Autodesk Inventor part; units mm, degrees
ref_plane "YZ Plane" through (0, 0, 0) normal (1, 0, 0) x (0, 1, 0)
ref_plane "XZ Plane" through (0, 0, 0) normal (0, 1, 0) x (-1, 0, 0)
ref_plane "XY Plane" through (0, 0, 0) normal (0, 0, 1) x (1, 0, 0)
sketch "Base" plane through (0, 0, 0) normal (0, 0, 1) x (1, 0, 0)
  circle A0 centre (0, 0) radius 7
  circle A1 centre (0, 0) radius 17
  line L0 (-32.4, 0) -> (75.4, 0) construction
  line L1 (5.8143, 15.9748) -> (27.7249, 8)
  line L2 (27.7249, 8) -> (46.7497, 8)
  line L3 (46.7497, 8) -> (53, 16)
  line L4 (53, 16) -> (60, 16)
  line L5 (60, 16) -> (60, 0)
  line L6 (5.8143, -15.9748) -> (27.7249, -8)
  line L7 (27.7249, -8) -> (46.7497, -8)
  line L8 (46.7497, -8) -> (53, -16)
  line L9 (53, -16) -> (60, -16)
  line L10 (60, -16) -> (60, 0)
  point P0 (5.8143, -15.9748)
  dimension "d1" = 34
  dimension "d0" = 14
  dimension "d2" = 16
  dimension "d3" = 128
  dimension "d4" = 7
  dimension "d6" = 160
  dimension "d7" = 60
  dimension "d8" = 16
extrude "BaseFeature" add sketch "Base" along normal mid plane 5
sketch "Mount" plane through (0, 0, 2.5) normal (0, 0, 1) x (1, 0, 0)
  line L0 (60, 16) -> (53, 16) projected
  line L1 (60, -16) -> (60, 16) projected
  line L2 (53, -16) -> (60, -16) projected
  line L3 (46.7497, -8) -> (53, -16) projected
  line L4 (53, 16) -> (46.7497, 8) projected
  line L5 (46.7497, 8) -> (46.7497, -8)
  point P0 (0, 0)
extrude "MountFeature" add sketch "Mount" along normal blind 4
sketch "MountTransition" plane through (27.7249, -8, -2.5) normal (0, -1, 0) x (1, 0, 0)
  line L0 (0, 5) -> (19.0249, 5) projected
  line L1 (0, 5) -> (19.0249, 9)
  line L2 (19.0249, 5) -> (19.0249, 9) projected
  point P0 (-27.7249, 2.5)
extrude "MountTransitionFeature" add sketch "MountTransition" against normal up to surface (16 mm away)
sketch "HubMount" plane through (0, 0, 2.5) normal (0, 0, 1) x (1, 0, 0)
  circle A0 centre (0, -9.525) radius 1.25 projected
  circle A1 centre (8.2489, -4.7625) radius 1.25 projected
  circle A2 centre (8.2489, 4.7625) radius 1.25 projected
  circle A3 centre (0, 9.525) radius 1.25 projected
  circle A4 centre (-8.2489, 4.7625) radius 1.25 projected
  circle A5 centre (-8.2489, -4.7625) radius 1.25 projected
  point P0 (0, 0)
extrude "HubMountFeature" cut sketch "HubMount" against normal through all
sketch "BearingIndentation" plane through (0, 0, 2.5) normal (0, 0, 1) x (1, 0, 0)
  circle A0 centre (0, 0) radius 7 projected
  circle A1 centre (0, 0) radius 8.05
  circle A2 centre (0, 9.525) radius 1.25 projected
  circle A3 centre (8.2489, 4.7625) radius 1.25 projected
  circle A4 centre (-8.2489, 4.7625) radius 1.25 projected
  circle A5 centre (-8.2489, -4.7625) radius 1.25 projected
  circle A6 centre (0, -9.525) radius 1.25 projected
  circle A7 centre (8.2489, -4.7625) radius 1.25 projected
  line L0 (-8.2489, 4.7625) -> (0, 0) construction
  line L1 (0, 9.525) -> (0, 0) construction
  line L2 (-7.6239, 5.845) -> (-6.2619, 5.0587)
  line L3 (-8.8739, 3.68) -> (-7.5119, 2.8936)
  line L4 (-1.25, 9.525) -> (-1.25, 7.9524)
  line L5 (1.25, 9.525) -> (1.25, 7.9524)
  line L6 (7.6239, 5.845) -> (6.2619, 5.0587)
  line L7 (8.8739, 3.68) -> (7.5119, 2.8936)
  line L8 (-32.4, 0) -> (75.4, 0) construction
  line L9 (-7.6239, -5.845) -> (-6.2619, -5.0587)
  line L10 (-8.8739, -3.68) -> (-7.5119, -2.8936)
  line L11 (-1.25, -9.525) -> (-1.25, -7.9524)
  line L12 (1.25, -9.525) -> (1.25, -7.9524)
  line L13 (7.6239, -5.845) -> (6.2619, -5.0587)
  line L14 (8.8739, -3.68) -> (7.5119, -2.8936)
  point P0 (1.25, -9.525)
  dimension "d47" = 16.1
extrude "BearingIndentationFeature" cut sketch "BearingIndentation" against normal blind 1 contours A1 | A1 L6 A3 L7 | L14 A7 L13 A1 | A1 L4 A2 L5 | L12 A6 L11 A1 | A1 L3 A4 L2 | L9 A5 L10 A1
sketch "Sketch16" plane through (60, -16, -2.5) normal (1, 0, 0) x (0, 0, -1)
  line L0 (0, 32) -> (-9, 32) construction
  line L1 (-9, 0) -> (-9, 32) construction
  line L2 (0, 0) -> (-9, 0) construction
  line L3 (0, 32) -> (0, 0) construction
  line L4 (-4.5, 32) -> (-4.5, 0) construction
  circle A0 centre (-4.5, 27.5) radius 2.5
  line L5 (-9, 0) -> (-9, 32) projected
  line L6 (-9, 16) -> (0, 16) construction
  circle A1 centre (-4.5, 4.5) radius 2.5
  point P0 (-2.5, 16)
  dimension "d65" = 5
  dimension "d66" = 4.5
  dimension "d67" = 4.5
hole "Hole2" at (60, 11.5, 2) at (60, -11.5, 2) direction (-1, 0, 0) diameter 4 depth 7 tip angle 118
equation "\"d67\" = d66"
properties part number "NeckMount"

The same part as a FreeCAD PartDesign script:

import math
import FreeCAD as App
import Part
import Sketcher
Q = App.Units.Quantity


def add_polygon(sketch, points):
    """Adds a closed chain of lines whose ends are joined by coincident constraints."""
    first, n = sketch.GeometryCount, len(points)
    for a, b in zip(points, points[1:] + points[:1]):
        sketch.addGeometry(Part.LineSegment(App.Vector(*a, 0), App.Vector(*b, 0)), False)
    for i in range(n):
        sketch.addConstraint(Sketcher.Constraint("Coincident", first + i, 2, first + (i + 1) % n, 1))

doc = App.newDocument("Part")
body = doc.addObject("PartDesign::Body", "Body")

# Sketch on XY plane
sketch1 = doc.addObject("Sketcher::SketchObject", "Sketch")
body.addObject(sketch1)
sketch1.AttachmentSupport = (doc.XY_Plane, [""])
sketch1.MapMode = "FlatFace"
sketch1.addGeometry(Part.ArcOfCircle(Part.Circle(App.Vector(0, 0, 0), App.Vector(0, 0, 1), 17), math.radians(70.000164), math.radians(289.999836)), False)
sketch1.addGeometry(Part.LineSegment(App.Vector(5.8143, -15.9748, 0), App.Vector(27.7249, -8, 0)), False)
sketch1.addGeometry(Part.LineSegment(App.Vector(27.7249, -8, 0), App.Vector(46.7497, -8, 0)), False)
sketch1.addGeometry(Part.LineSegment(App.Vector(46.7497, -8, 0), App.Vector(53, -16, 0)), False)
sketch1.addGeometry(Part.LineSegment(App.Vector(53, -16, 0), App.Vector(60, -16, 0)), False)
sketch1.addGeometry(Part.LineSegment(App.Vector(60, -16, 0), App.Vector(60, 16, 0)), False)
sketch1.addGeometry(Part.LineSegment(App.Vector(60, 16, 0), App.Vector(53, 16, 0)), False)
sketch1.addGeometry(Part.LineSegment(App.Vector(53, 16, 0), App.Vector(46.7497, 8, 0)), False)
sketch1.addGeometry(Part.LineSegment(App.Vector(46.7497, 8, 0), App.Vector(27.7249, 8, 0)), False)
sketch1.addGeometry(Part.LineSegment(App.Vector(27.7249, 8, 0), App.Vector(5.8143, 15.9748, 0)), False)
sketch1.addGeometry(Part.Circle(App.Vector(0, 0, 0), App.Vector(0, 0, 1), 7), False)
sketch1.addConstraint(Sketcher.Constraint("Tangent", 0, 2, 1, 1))
sketch1.addConstraint(Sketcher.Constraint("Coincident", 1, 2, 2, 1))
sketch1.addConstraint(Sketcher.Constraint("Coincident", 2, 2, 3, 1))
sketch1.addConstraint(Sketcher.Constraint("Coincident", 3, 2, 4, 1))
sketch1.addConstraint(Sketcher.Constraint("Coincident", 4, 2, 5, 1))
sketch1.addConstraint(Sketcher.Constraint("Coincident", 5, 2, 6, 1))
sketch1.addConstraint(Sketcher.Constraint("Coincident", 6, 2, 7, 1))
sketch1.addConstraint(Sketcher.Constraint("Coincident", 7, 2, 8, 1))
sketch1.addConstraint(Sketcher.Constraint("Coincident", 8, 2, 9, 1))
sketch1.addConstraint(Sketcher.Constraint("Tangent", 9, 2, 0, 1))
sketch1.addConstraint(Sketcher.Constraint("Horizontal", 2))
sketch1.addConstraint(Sketcher.Constraint("Horizontal", 4))
sketch1.addConstraint(Sketcher.Constraint("Vertical", 5))
sketch1.addConstraint(Sketcher.Constraint("Horizontal", 6))
sketch1.addConstraint(Sketcher.Constraint("Horizontal", 8))
sketch1.addConstraint(Sketcher.Constraint("Coincident", 0, 3, -1, 1))
sketch1.addConstraint(Sketcher.Constraint("Coincident", 10, 3, -1, 1))
sketch1.addConstraint(Sketcher.Constraint("Symmetric", 3, 2, 6, 2, -1))
sketch1.addConstraint(Sketcher.Constraint("Symmetric", 2, 2, 7, 2, -1))
sketch1.addConstraint(Sketcher.Constraint("Vertical", 1, 2, 8, 2))
sketch1.addConstraint(Sketcher.Constraint("Diameter", 10, Q("14 mm")))
sketch1.addConstraint(Sketcher.Constraint("Radius", 0, Q("17 mm")))
sketch1.addConstraint(Sketcher.Constraint("DistanceX", 4, 1, 4, 2, Q("7 mm")))
sketch1.addConstraint(Sketcher.Constraint("Angle", 7, Q("-128 deg")))
sketch1.addConstraint(Sketcher.Constraint("Angle", 9, Q("160 deg")))
sketch1.addConstraint(Sketcher.Constraint("DistanceY", 3, 2, -1, 1, Q("16 mm")))
sketch1.addConstraint(Sketcher.Constraint("DistanceX", -1, 1, 4, 2, Q("60 mm")))
sketch1.addConstraint(Sketcher.Constraint("DistanceY", 2, 2, 7, 2, Q("16 mm")))
pad1 = doc.addObject("PartDesign::Pad", "Pad")
body.addObject(pad1)
pad1.Profile = sketch1
pad1.Length = 5
pad1.Midplane = True

# Sketch on XY plane
sketch2 = doc.addObject("Sketcher::SketchObject", "Sketch001")
body.addObject(sketch2)
sketch2.AttachmentSupport = (doc.XY_Plane, [""])
sketch2.MapMode = "FlatFace"
sketch2.AttachmentOffset = App.Placement(App.Vector(0, 0, 2.5), App.Rotation())
add_polygon(sketch2, [(60, -16), (60, 16), (53, 16), (46.7497, 8), (46.7497, -8), (53, -16)])  # lines 0-5
sketch2.addConstraint(Sketcher.Constraint("Vertical", 0))
sketch2.addConstraint(Sketcher.Constraint("Horizontal", 1))
sketch2.addConstraint(Sketcher.Constraint("Vertical", 3))
sketch2.addConstraint(Sketcher.Constraint("Horizontal", 5))
sketch2.addConstraint(Sketcher.Constraint("Symmetric", 1, 2, 4, 2, -1))
sketch2.addConstraint(Sketcher.Constraint("Equal", 2, 4))
sketch2.addConstraint(Sketcher.Constraint("DistanceX", 1, 2, 1, 1, Q("7 mm")))
sketch2.addConstraint(Sketcher.Constraint("DistanceY", 0, 1, 0, 2, Q("32 mm")))
sketch2.addConstraint(Sketcher.Constraint("DistanceY", 3, 2, 3, 1, Q("16 mm")))
sketch2.addConstraint(Sketcher.Constraint("Angle", 2, Q("-128 deg")))
sketch2.addConstraint(Sketcher.Constraint("DistanceX", -1, 1, 0, 2, Q("60 mm")))
pad2 = doc.addObject("PartDesign::Pad", "Pad001")
body.addObject(pad2)
pad2.Profile = sketch2
pad2.Length = 4

# Sketch on XZ plane
sketch3 = doc.addObject("Sketcher::SketchObject", "Sketch002")
body.addObject(sketch3)
sketch3.AttachmentSupport = (doc.XZ_Plane, [""])
sketch3.MapMode = "FlatFace"
sketch3.AttachmentOffset = App.Placement(App.Vector(0, 0, 8), App.Rotation())
add_polygon(sketch3, [(46.7498, 6.5), (27.7249, 2.5), (46.7498, 2.5)])  # lines 0-2
sketch3.addConstraint(Sketcher.Constraint("Horizontal", 1))
sketch3.addConstraint(Sketcher.Constraint("Vertical", 2))
sketch3.addConstraint(Sketcher.Constraint("DistanceY", 2, 1, 2, 2, Q("4 mm")))
sketch3.addConstraint(Sketcher.Constraint("DistanceY", -1, 1, 0, 2, Q("2.5 mm")))
sketch3.addConstraint(Sketcher.Constraint("DistanceX", 1, 1, 1, 2, Q("19.025 mm")))
sketch3.addConstraint(Sketcher.Constraint("DistanceX", -1, 1, 0, 2, Q("27.725 mm")))
pad3 = doc.addObject("PartDesign::Pad", "Pad002")
body.addObject(pad3)
pad3.Profile = sketch3
pad3.Length = 16
pad3.Reversed = True

# Sketch on XY plane
sketch4 = doc.addObject("Sketcher::SketchObject", "Sketch003")
body.addObject(sketch4)
sketch4.AttachmentSupport = (doc.XY_Plane, [""])
sketch4.MapMode = "FlatFace"
sketch4.AttachmentOffset = App.Placement(App.Vector(0, 0, 2.5), App.Rotation())
sketch4.addGeometry(Part.Circle(App.Vector(0, -9.525, 0), App.Vector(0, 0, 1), 1.25), False)
sketch4.addGeometry(Part.Circle(App.Vector(8.2489, -4.7625, 0), App.Vector(0, 0, 1), 1.25), False)
sketch4.addGeometry(Part.Circle(App.Vector(8.2489, 4.7625, 0), App.Vector(0, 0, 1), 1.25), False)
sketch4.addGeometry(Part.Circle(App.Vector(0, 9.525, 0), App.Vector(0, 0, 1), 1.25), False)
sketch4.addGeometry(Part.Circle(App.Vector(-8.2489, 4.7625, 0), App.Vector(0, 0, 1), 1.25), False)
sketch4.addGeometry(Part.Circle(App.Vector(-8.2489, -4.7625, 0), App.Vector(0, 0, 1), 1.25), False)
sketch4.addConstraint(Sketcher.Constraint("Equal", 0, 1))
sketch4.addConstraint(Sketcher.Constraint("Equal", 1, 2))
sketch4.addConstraint(Sketcher.Constraint("Equal", 2, 3))
sketch4.addConstraint(Sketcher.Constraint("Equal", 3, 4))
sketch4.addConstraint(Sketcher.Constraint("Equal", 4, 5))
sketch4.addConstraint(Sketcher.Constraint("Symmetric", 0, 3, 3, 3, -1, 1))
sketch4.addConstraint(Sketcher.Constraint("Symmetric", 1, 3, 4, 3, -1, 1))
sketch4.addConstraint(Sketcher.Constraint("Symmetric", 2, 3, 5, 3, -1, 1))
sketch4.addConstraint(Sketcher.Constraint("Symmetric", 2, 3, 4, 3, -2))
sketch4.addConstraint(Sketcher.Constraint("PointOnObject", 0, 3, -2))
sketch4.addConstraint(Sketcher.Constraint("Diameter", 0, Q("2.5 mm")))
sketch4.addConstraint(Sketcher.Constraint("DistanceY", 0, 3, 3, 3, Q("19.05 mm")))
sketch4.addConstraint(Sketcher.Constraint("DistanceX", -1, 1, 1, 3, Q("8.249 mm")))
sketch4.addConstraint(Sketcher.Constraint("DistanceY", 1, 3, 2, 3, Q("9.525 mm")))
pocket1 = doc.addObject("PartDesign::Pocket", "Pocket")
body.addObject(pocket1)
pocket1.Profile = sketch4
pocket1.Type = "ThroughAll"

# Sketch on XY plane
sketch5 = doc.addObject("Sketcher::SketchObject", "Sketch004")
body.addObject(sketch5)
sketch5.AttachmentSupport = (doc.XY_Plane, [""])
sketch5.MapMode = "FlatFace"
sketch5.AttachmentOffset = App.Placement(App.Vector(0, 0, 2.5), App.Rotation())
sketch5.addGeometry(Part.ArcOfCircle(Part.Circle(App.Vector(0, 0, 0), App.Vector(0, 0, 1), 8.05), math.radians(-21.066792), math.radians(21.066792)), False)
sketch5.addGeometry(Part.LineSegment(App.Vector(7.5119, 2.8936, 0), App.Vector(8.8739, 3.68, 0)), False)
sketch5.addGeometry(Part.ArcOfCircle(Part.Circle(App.Vector(8.2489, 4.7625, 0), App.Vector(0, 0, 1), 1.25), math.radians(120.000728), math.radians(300.000728)), False)
sketch5.addGeometry(Part.LineSegment(App.Vector(7.6239, 5.845, 0), App.Vector(6.2619, 5.0587, 0)), False)
sketch5.addGeometry(Part.ArcOfCircle(Part.Circle(App.Vector(0, 0, 0), App.Vector(0, 0, 1), 8.05), math.radians(38.933144), math.radians(81.067039)), False)
sketch5.addGeometry(Part.LineSegment(App.Vector(1.25, 7.9524, 0), App.Vector(1.25, 9.525, 0)), False)
sketch5.addGeometry(Part.ArcOfCircle(Part.Circle(App.Vector(0, 9.525, 0), App.Vector(0, 0, 1), 1.25), math.radians(180), math.radians(360)), False)
sketch5.addGeometry(Part.LineSegment(App.Vector(-1.25, 9.525, 0), App.Vector(-1.25, 7.9524, 0)), False)
sketch5.addGeometry(Part.ArcOfCircle(Part.Circle(App.Vector(0, 0, 0), App.Vector(0, 0, 1), 8.05), math.radians(98.932961), math.radians(141.066856)), False)
sketch5.addGeometry(Part.LineSegment(App.Vector(-6.2619, 5.0587, 0), App.Vector(-7.6239, 5.845, 0)), False)
sketch5.addGeometry(Part.ArcOfCircle(Part.Circle(App.Vector(-8.2489, 4.7625, 0), App.Vector(0, 0, 1), 1.25), math.radians(-120.000728), math.radians(59.999272)), False)
sketch5.addGeometry(Part.LineSegment(App.Vector(-8.8739, 3.68, 0), App.Vector(-7.5119, 2.8936, 0)), False)
sketch5.addGeometry(Part.ArcOfCircle(Part.Circle(App.Vector(0, 0, 0), App.Vector(0, 0, 1), 8.05), math.radians(158.933208), math.radians(201.066792)), False)
sketch5.addGeometry(Part.LineSegment(App.Vector(-7.5119, -2.8936, 0), App.Vector(-8.8739, -3.68, 0)), False)
sketch5.addGeometry(Part.ArcOfCircle(Part.Circle(App.Vector(-8.2489, -4.7625, 0), App.Vector(0, 0, 1), 1.25), math.radians(-59.999272), math.radians(120.000728)), False)
sketch5.addGeometry(Part.LineSegment(App.Vector(-7.6239, -5.845, 0), App.Vector(-6.2619, -5.0587, 0)), False)
sketch5.addGeometry(Part.ArcOfCircle(Part.Circle(App.Vector(0, 0, 0), App.Vector(0, 0, 1), 8.05), math.radians(-141.066856), math.radians(-98.932961)), False)
sketch5.addGeometry(Part.LineSegment(App.Vector(-1.25, -7.9524, 0), App.Vector(-1.25, -9.525, 0)), False)
sketch5.addGeometry(Part.ArcOfCircle(Part.Circle(App.Vector(0, -9.525, 0), App.Vector(0, 0, 1), 1.25), math.radians(0), math.radians(180)), False)
sketch5.addGeometry(Part.LineSegment(App.Vector(1.25, -9.525, 0), App.Vector(1.25, -7.9524, 0)), False)
sketch5.addGeometry(Part.ArcOfCircle(Part.Circle(App.Vector(0, 0, 0), App.Vector(0, 0, 1), 8.05), math.radians(-81.067039), math.radians(-38.933144)), False)
sketch5.addGeometry(Part.LineSegment(App.Vector(6.2619, -5.0587, 0), App.Vector(7.6239, -5.845, 0)), False)
sketch5.addGeometry(Part.ArcOfCircle(Part.Circle(App.Vector(8.2489, -4.7625, 0), App.Vector(0, 0, 1), 1.25), math.radians(59.999272), math.radians(239.999272)), False)
sketch5.addGeometry(Part.LineSegment(App.Vector(8.8739, -3.68, 0), App.Vector(7.5119, -2.8936, 0)), False)
sketch5.addGeometry(Part.Circle(App.Vector(0, 0, 0), App.Vector(0, 0, 1), 7), False)
sketch5.addConstraint(Sketcher.Constraint("Coincident", 0, 2, 1, 1))
sketch5.addConstraint(Sketcher.Constraint("Tangent", 1, 2, 2, 2))
sketch5.addConstraint(Sketcher.Constraint("Tangent", 2, 1, 3, 1))
sketch5.addConstraint(Sketcher.Constraint("Coincident", 3, 2, 4, 1))
sketch5.addConstraint(Sketcher.Constraint("Coincident", 4, 2, 5, 1))
sketch5.addConstraint(Sketcher.Constraint("Tangent", 5, 2, 6, 2))
sketch5.addConstraint(Sketcher.Constraint("Tangent", 6, 1, 7, 1))
sketch5.addConstraint(Sketcher.Constraint("Coincident", 7, 2, 8, 1))
sketch5.addConstraint(Sketcher.Constraint("Coincident", 8, 2, 9, 1))
sketch5.addConstraint(Sketcher.Constraint("Tangent", 9, 2, 10, 2))
sketch5.addConstraint(Sketcher.Constraint("Tangent", 10, 1, 11, 1))
sketch5.addConstraint(Sketcher.Constraint("Coincident", 11, 2, 12, 1))
sketch5.addConstraint(Sketcher.Constraint("Coincident", 12, 2, 13, 1))
sketch5.addConstraint(Sketcher.Constraint("Tangent", 13, 2, 14, 2))
sketch5.addConstraint(Sketcher.Constraint("Tangent", 14, 1, 15, 1))
sketch5.addConstraint(Sketcher.Constraint("Coincident", 15, 2, 16, 1))
sketch5.addConstraint(Sketcher.Constraint("Coincident", 16, 2, 17, 1))
sketch5.addConstraint(Sketcher.Constraint("Tangent", 17, 2, 18, 2))
sketch5.addConstraint(Sketcher.Constraint("Tangent", 18, 1, 19, 1))
sketch5.addConstraint(Sketcher.Constraint("Coincident", 19, 2, 20, 1))
sketch5.addConstraint(Sketcher.Constraint("Coincident", 20, 2, 21, 1))
sketch5.addConstraint(Sketcher.Constraint("Tangent", 21, 2, 22, 2))
sketch5.addConstraint(Sketcher.Constraint("Tangent", 22, 1, 23, 1))
sketch5.addConstraint(Sketcher.Constraint("Coincident", 23, 2, 0, 1))
sketch5.addConstraint(Sketcher.Constraint("Vertical", 5))
sketch5.addConstraint(Sketcher.Constraint("Vertical", 7))
sketch5.addConstraint(Sketcher.Constraint("Vertical", 17))
sketch5.addConstraint(Sketcher.Constraint("Vertical", 19))
sketch5.addConstraint(Sketcher.Constraint("Coincident", 0, 3, -1, 1))
sketch5.addConstraint(Sketcher.Constraint("Coincident", 4, 3, -1, 1))
sketch5.addConstraint(Sketcher.Constraint("Coincident", 8, 3, -1, 1))
sketch5.addConstraint(Sketcher.Constraint("Coincident", 12, 3, -1, 1))
sketch5.addConstraint(Sketcher.Constraint("Coincident", 16, 3, -1, 1))
sketch5.addConstraint(Sketcher.Constraint("Coincident", 20, 3, -1, 1))
sketch5.addConstraint(Sketcher.Constraint("Coincident", 24, 3, -1, 1))
sketch5.addConstraint(Sketcher.Constraint("Equal", 0, 4))
sketch5.addConstraint(Sketcher.Constraint("Equal", 2, 6))
sketch5.addConstraint(Sketcher.Constraint("Equal", 4, 8))
sketch5.addConstraint(Sketcher.Constraint("Equal", 6, 10))
sketch5.addConstraint(Sketcher.Constraint("Equal", 8, 12))
sketch5.addConstraint(Sketcher.Constraint("Equal", 10, 14))
sketch5.addConstraint(Sketcher.Constraint("Equal", 12, 16))
sketch5.addConstraint(Sketcher.Constraint("Equal", 14, 18))
sketch5.addConstraint(Sketcher.Constraint("Equal", 16, 20))
sketch5.addConstraint(Sketcher.Constraint("Equal", 18, 22))
sketch5.addConstraint(Sketcher.Constraint("Symmetric", 2, 3, 14, 3, -1, 1))
sketch5.addConstraint(Sketcher.Constraint("Symmetric", 6, 3, 18, 3, -1, 1))
sketch5.addConstraint(Sketcher.Constraint("Symmetric", 10, 3, 22, 3, -1, 1))
sketch5.addConstraint(Sketcher.Constraint("Symmetric", 2, 3, 10, 3, -2))
sketch5.addConstraint(Sketcher.Constraint("PointOnObject", 6, 3, -2))
sketch5.addConstraint(Sketcher.Constraint("Parallel", 1, 3))
sketch5.addConstraint(Sketcher.Constraint("Parallel", 9, 11))
sketch5.addConstraint(Sketcher.Constraint("Parallel", 3, 13))
sketch5.addConstraint(Sketcher.Constraint("Parallel", 13, 15))
sketch5.addConstraint(Sketcher.Constraint("Parallel", 11, 21))
sketch5.addConstraint(Sketcher.Constraint("Parallel", 21, 23))
sketch5.addConstraint(Sketcher.Constraint("Horizontal", 3, 2, 8, 2))
sketch5.addConstraint(Sketcher.Constraint("Equal", 1, 3))
sketch5.addConstraint(Sketcher.Constraint("Radius", 0, Q("8.05 mm")))
sketch5.addConstraint(Sketcher.Constraint("Diameter", 24, Q("14 mm")))
sketch5.addConstraint(Sketcher.Constraint("Radius", 2, Q("1.25 mm")))
sketch5.addConstraint(Sketcher.Constraint("DistanceY", -1, 1, 1, 2, Q("3.68 mm")))
sketch5.addConstraint(Sketcher.Constraint("DistanceX", 2, 1, 1, 2, Q("1.25 mm")))
sketch5.addConstraint(Sketcher.Constraint("DistanceY", 2, 1, 6, 3, Q("3.68 mm")))
pocket2 = doc.addObject("PartDesign::Pocket", "Pocket001")
body.addObject(pocket2)
pocket2.Profile = sketch5
pocket2.Length = 1

# Sketch on YZ plane
sketch6 = doc.addObject("Sketcher::SketchObject", "Sketch005")
body.addObject(sketch6)
sketch6.AttachmentSupport = (doc.YZ_Plane, [""])
sketch6.MapMode = "FlatFace"
sketch6.AttachmentOffset = App.Placement(App.Vector(0, 0, 60), App.Rotation())
sketch6.addGeometry(Part.Circle(App.Vector(11.5, 2, 0), App.Vector(0, 0, 1), 2), False)
sketch6.addGeometry(Part.Circle(App.Vector(-11.5, 2, 0), App.Vector(0, 0, 1), 2), False)
sketch6.addConstraint(Sketcher.Constraint("Equal", 0, 1))
sketch6.addConstraint(Sketcher.Constraint("Symmetric", 0, 3, 1, 3, -2))
sketch6.addConstraint(Sketcher.Constraint("Diameter", 0, Q("4 mm")))
sketch6.addConstraint(Sketcher.Constraint("DistanceY", -1, 1, 0, 3, Q("2 mm")))
sketch6.addConstraint(Sketcher.Constraint("DistanceX", 1, 3, 0, 3, Q("23 mm")))
doc.recompute()
hole = doc.addObject("PartDesign::Hole", "Hole")
body.addObject(hole)
hole.Profile = sketch6
hole.ThreadType = "None"
hole.Diameter = 4
hole.DepthType = "Dimension"
hole.Depth = 7
hole.DrillPoint = "Angled"
hole.DrillPointAngle = 118

doc.recompute()
